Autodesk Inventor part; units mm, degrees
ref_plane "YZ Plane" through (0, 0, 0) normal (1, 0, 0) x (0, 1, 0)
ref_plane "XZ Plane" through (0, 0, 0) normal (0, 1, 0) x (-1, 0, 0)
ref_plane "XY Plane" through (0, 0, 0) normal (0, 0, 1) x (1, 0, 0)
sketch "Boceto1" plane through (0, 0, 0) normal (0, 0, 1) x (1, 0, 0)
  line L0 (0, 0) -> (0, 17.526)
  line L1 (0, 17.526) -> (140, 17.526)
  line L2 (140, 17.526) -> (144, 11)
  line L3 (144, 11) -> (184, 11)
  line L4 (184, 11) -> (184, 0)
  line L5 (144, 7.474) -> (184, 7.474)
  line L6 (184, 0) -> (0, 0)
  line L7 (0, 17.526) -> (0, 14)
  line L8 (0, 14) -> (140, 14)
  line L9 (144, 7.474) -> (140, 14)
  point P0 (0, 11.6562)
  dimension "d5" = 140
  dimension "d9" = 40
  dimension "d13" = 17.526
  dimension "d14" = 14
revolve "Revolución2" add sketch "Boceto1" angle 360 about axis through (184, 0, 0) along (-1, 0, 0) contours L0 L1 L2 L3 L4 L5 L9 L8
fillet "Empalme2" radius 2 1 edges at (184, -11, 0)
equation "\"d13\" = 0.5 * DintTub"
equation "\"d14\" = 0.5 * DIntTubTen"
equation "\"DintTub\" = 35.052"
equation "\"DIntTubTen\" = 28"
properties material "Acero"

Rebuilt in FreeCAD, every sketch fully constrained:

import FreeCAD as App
import Part
import Sketcher
from FreeCAD import Vector


def edges_at(feature, points):
    """Names of the edges that pass closest to the given points."""
    edges = feature.Shape.Edges
    near = lambda p: min(range(len(edges)), key=lambda i: edges[i].distToShape(Part.Vertex(*p))[0])
    return sorted({f"Edge{near(p) + 1}" for p in points})

doc = App.newDocument("Part")
params = doc.addObject("Spreadsheet::Sheet", "Params")
for row, (alias, value) in enumerate([
    ("sketch1_width", "140 mm"),
    ("sketch1_width2", "40 mm"),
    ("revolution_angle", "360 deg"),
    ("fillet_radius", "2 mm"),
], start=1):
    params.set(f"A{row}", alias)
    params.set(f"B{row}", "=" + value)
    params.setAlias(f"B{row}", alias)

body = doc.addObject("PartDesign::Body", "Body")

sketch1 = body.newObject("Sketcher::SketchObject", "Sketch")
sketch1.AttachmentSupport = (doc.getObject("XY_Plane"), [""])
sketch1.MapMode = "FlatFace"
sketch1.addGeometry(Part.LineSegment(Vector(0, 17.5, 0), Vector(0, 14, 0)), False)
sketch1.addGeometry(Part.LineSegment(Vector(0, 14, 0), Vector(140, 14, 0)), False)
sketch1.addGeometry(Part.LineSegment(Vector(140, 14, 0), Vector(144, 7.5, 0)), False)
sketch1.addGeometry(Part.LineSegment(Vector(144, 7.5, 0), Vector(184, 7.5, 0)), False)
sketch1.addGeometry(Part.LineSegment(Vector(184, 7.5, 0), Vector(184, 11, 0)), False)
sketch1.addGeometry(Part.LineSegment(Vector(184, 11, 0), Vector(144, 11, 0)), False)
sketch1.addGeometry(Part.LineSegment(Vector(144, 11, 0), Vector(140, 17.5, 0)), False)
sketch1.addGeometry(Part.LineSegment(Vector(140, 17.5, 0), Vector(0, 17.5, 0)), False)
sketch1.addConstraint(Sketcher.Constraint("Coincident", 0, 2, 1, 1))
sketch1.addConstraint(Sketcher.Constraint("Coincident", 1, 2, 2, 1))
sketch1.addConstraint(Sketcher.Constraint("Coincident", 2, 2, 3, 1))
sketch1.addConstraint(Sketcher.Constraint("Coincident", 3, 2, 4, 1))
sketch1.addConstraint(Sketcher.Constraint("Coincident", 4, 2, 5, 1))
sketch1.addConstraint(Sketcher.Constraint("Coincident", 5, 2, 6, 1))
sketch1.addConstraint(Sketcher.Constraint("Coincident", 6, 2, 7, 1))
sketch1.addConstraint(Sketcher.Constraint("Coincident", 7, 2, 0, 1))
sketch1.addConstraint(Sketcher.Constraint("Vertical", 0))
sketch1.addConstraint(Sketcher.Constraint("Horizontal", 1))
sketch1.addConstraint(Sketcher.Constraint("Horizontal", 3))
sketch1.addConstraint(Sketcher.Constraint("Vertical", 4))
sketch1.addConstraint(Sketcher.Constraint("Horizontal", 5))
sketch1.addConstraint(Sketcher.Constraint("Horizontal", 7))
sketch1.addConstraint(Sketcher.Constraint("PointOnObject", 0, 2, -2))
sketch1.addConstraint(Sketcher.Constraint("Parallel", 2, 6))
sketch1.addConstraint(Sketcher.Constraint("Vertical", 2, 2, 5, 2))
sketch1.addConstraint(Sketcher.Constraint("Vertical", 1, 2, 6, 2))
sketch1.addConstraint(Sketcher.Constraint("DistanceX", 1, 1, 1, 2, 140.0))
sketch1.addConstraint(Sketcher.Constraint("DistanceX", 3, 1, 3, 2, 40.0))
sketch1.addConstraint(Sketcher.Constraint("DistanceY", -1, 1, 0, 2, 14.0))
sketch1.addConstraint(Sketcher.Constraint("DistanceY", -1, 1, 6, 2, 17.526))
sketch1.addConstraint(Sketcher.Constraint("DistanceX", -1, 1, 2, 2, 144.0))
sketch1.addConstraint(Sketcher.Constraint("DistanceY", -1, 1, 4, 2, 11.0))
sketch1.setExpression("Constraints[18]", "Params.sketch1_width")
sketch1.setExpression("Constraints[19]", "Params.sketch1_width2")
revolution = body.newObject("PartDesign::Revolution", "Revolution")
revolution.Profile = sketch1
revolution.ReferenceAxis = (sketch1, ["H_Axis"])
revolution.setExpression("Angle", "Params.revolution_angle")
doc.recompute()

fillet = body.newObject("PartDesign::Fillet", "Fillet")
fillet.Base = (revolution, edges_at(revolution, [(184, -11, 0)]))
fillet.setExpression("Radius", "Params.fillet_radius")

doc.recompute()
